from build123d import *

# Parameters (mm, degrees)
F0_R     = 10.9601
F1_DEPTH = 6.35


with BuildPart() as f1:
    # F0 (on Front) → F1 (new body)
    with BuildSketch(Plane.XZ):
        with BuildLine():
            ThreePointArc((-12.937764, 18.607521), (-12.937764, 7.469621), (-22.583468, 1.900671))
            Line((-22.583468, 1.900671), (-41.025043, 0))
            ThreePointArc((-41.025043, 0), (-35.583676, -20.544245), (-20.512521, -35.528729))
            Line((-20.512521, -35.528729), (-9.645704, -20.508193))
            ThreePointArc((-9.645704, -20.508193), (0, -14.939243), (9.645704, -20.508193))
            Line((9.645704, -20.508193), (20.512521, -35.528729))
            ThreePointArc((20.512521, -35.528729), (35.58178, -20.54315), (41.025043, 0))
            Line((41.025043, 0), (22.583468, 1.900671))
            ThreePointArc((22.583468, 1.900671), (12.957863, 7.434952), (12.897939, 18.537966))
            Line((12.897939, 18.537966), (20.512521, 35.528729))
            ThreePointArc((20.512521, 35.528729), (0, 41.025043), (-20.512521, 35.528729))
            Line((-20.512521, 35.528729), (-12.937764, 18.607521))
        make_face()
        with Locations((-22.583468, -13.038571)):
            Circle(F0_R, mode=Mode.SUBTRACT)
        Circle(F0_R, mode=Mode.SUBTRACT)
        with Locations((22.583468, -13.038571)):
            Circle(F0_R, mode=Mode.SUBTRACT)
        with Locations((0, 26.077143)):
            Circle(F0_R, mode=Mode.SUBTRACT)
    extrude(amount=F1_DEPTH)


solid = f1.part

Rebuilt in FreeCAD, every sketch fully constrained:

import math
import FreeCAD as App
import Part
import Sketcher
from FreeCAD import Vector
Q = App.Units.Quantity

doc = App.newDocument("Part")
params = doc.addObject("Spreadsheet::Sheet", "Params")
for row, (alias, value) in enumerate([
    ("sketch1_diameter", "0.863 in"),
    ("pad1_length", "0.25 in"),
], start=1):
    params.set(f"A{row}", alias)
    params.set(f"B{row}", "=" + value)
    params.setAlias(f"B{row}", alias)

body = doc.addObject("PartDesign::Body", "Body")

sketch1 = doc.addObject("Sketcher::SketchObject", "Sketch")
body.addObject(sketch1)
sketch1.AttachmentSupport = (doc.XZ_Plane, [""])
sketch1.MapMode = "FlatFace"
sketch1.addGeometry(Part.ArcOfCircle(Part.Circle(Vector(-22.583468, 13.038571, 0), Vector(0, 0, 1), 11.1379), math.radians(-89.999998), math.radians(30)), False)
sketch1.addGeometry(Part.LineSegment(Vector(-22.583468, 1.900671, 0), Vector(-41.025043, 0, 0)), False)
sketch1.addGeometry(Part.ArcOfCircle(Part.Circle(Vector(-0.405763, -0.234266, 0), Vector(0, 0, 1), 40.619956), math.radians(179.669558), math.radians(240.330444)), False)
sketch1.addGeometry(Part.LineSegment(Vector(-20.512521, -35.528729, 0), Vector(-9.645704, -20.508193, 0)), False)
sketch1.addGeometry(Part.ArcOfCircle(Part.Circle(Vector(0, -26.077142, 0), Vector(0, 0, 1), 11.137899), math.radians(29.999998), math.radians(150.000002)), False)
sketch1.addGeometry(Part.LineSegment(Vector(9.645704, -20.508193, 0), Vector(20.512521, -35.528729, 0)), False)
sketch1.addGeometry(Part.ArcOfCircle(Part.Circle(Vector(0.391904, -0.226265, 0), Vector(0, 0, 1), 40.633769), math.radians(-60.319049), math.radians(0.319048)), False)
sketch1.addGeometry(Part.LineSegment(Vector(41.025043, 0, 0), Vector(22.583468, 1.900671, 0)), False)
sketch1.addGeometry(Part.ArcOfCircle(Part.Circle(Vector(22.583468, 13.038571, 0), Vector(0, 0, 1), 11.1379), math.radians(150.412306), math.radians(270)), False)
sketch1.addGeometry(Part.LineSegment(Vector(12.897939, 18.537966, 0), Vector(20.512521, 35.528729, 0)), False)
sketch1.addGeometry(Part.ArcOfCircle(Part.Circle(Vector(0, 0.000005, 0), Vector(0, 0, 1), 41.025038), math.radians(59.999997), math.radians(120.000003)), False)
sketch1.addGeometry(Part.LineSegment(Vector(-20.512521, 35.528729, 0), Vector(-12.937764, 18.607521, 0)), False)
sketch1.addGeometry(Part.Circle(Vector(-22.583468, -13.038571, 0), Vector(0, 0, 1), 10.9601), False)
sketch1.addGeometry(Part.Circle(Vector(22.583468, -13.038571, 0), Vector(0, 0, 1), 10.9601), False)
sketch1.addGeometry(Part.Circle(Vector(0, 0, 0), Vector(0, 0, 1), 10.9601), False)
sketch1.addGeometry(Part.Circle(Vector(0, 26.077143, 0), Vector(0, 0, 1), 10.9601), False)
sketch1.addConstraint(Sketcher.Constraint("Coincident", 0, 1, 1, 1))
sketch1.addConstraint(Sketcher.Constraint("Coincident", 1, 2, 2, 1))
sketch1.addConstraint(Sketcher.Constraint("Coincident", 2, 2, 3, 1))
sketch1.addConstraint(Sketcher.Constraint("Coincident", 3, 2, 4, 2))
sketch1.addConstraint(Sketcher.Constraint("Coincident", 4, 1, 5, 1))
sketch1.addConstraint(Sketcher.Constraint("Coincident", 5, 2, 6, 1))
sketch1.addConstraint(Sketcher.Constraint("Coincident", 6, 2, 7, 1))
sketch1.addConstraint(Sketcher.Constraint("Coincident", 7, 2, 8, 2))
sketch1.addConstraint(Sketcher.Constraint("Coincident", 8, 1, 9, 1))
sketch1.addConstraint(Sketcher.Constraint("Coincident", 9, 2, 10, 1))
sketch1.addConstraint(Sketcher.Constraint("Coincident", 10, 2, 11, 1))
sketch1.addConstraint(Sketcher.Constraint("Coincident", 11, 2, 0, 2))
sketch1.addConstraint(Sketcher.Constraint("Coincident", 10, 3, -1, 1))
sketch1.addConstraint(Sketcher.Constraint("Coincident", 14, 3, -1, 1))
sketch1.addConstraint(Sketcher.Constraint("Equal", 0, 4))
sketch1.addConstraint(Sketcher.Constraint("Equal", 4, 8))
sketch1.addConstraint(Sketcher.Constraint("Equal", 12, 13))
sketch1.addConstraint(Sketcher.Constraint("Equal", 13, 14))
sketch1.addConstraint(Sketcher.Constraint("Equal", 14, 15))
sketch1.addConstraint(Sketcher.Constraint("Symmetric", 8, 3, 12, 3, -1, 1))
sketch1.addConstraint(Sketcher.Constraint("Symmetric", 0, 3, 13, 3, -1, 1))
sketch1.addConstraint(Sketcher.Constraint("Symmetric", 4, 3, 15, 3, -1, 1))
sketch1.addConstraint(Sketcher.Constraint("Symmetric", 1, 2, 6, 2, -1, 1))
sketch1.addConstraint(Sketcher.Constraint("Symmetric", 2, 2, 9, 2, -1, 1))
sketch1.addConstraint(Sketcher.Constraint("Symmetric", 5, 2, 10, 2, -1, 1))
sketch1.addConstraint(Sketcher.Constraint("Symmetric", 0, 3, 8, 3, -2))
sketch1.addConstraint(Sketcher.Constraint("Symmetric", 3, 2, 4, 1, -2))
sketch1.addConstraint(Sketcher.Constraint("PointOnObject", 1, 2, -1))
sketch1.addConstraint(Sketcher.Constraint("Horizontal", 2, 2, 5, 2))
sketch1.addConstraint(Sketcher.Constraint("Vertical", 12, 3, 0, 1))
sketch1.addConstraint(Sketcher.Constraint("Vertical", 13, 3, 7, 2))
sketch1.addConstraint(Sketcher.Constraint("Equal", 1, 3))
sketch1.addConstraint(Sketcher.Constraint("Equal", 7, 11))
sketch1.addConstraint(Sketcher.Constraint("Diameter", 12, Q("0.863 in")))
sketch1.addConstraint(Sketcher.Constraint("Radius", 0, Q("0.4385 in")))
sketch1.addConstraint(Sketcher.Constraint("Angle", 9, Q("65.859981 deg")))
sketch1.addConstraint(Sketcher.Constraint("Radius", 6, Q("40.633769 mm")))
sketch1.addConstraint(Sketcher.Constraint("Radius", 10, Q("41.025038 mm")))
sketch1.addConstraint(Sketcher.Constraint("Radius", 2, Q("40.619956 mm")))
sketch1.addConstraint(Sketcher.Constraint("DistanceY", 2, 2, 0, 1, Q("37.4294 mm")))
sketch1.addConstraint(Sketcher.Constraint("DistanceX", 6, 3, 4, 1, Q("9.2538 mm")))
sketch1.addConstraint(Sketcher.Constraint("DistanceX", 11, 2, 2, 3, Q("12.532001 mm")))
sketch1.addConstraint(Sketcher.Constraint("Distance", 3, Q("18.539261 mm")))
sketch1.addConstraint(Sketcher.Constraint("Distance", 9, Q("18.619019 mm")))
sketch1.setExpression("Constraints[33]", "Params.sketch1_diameter")
pad1 = doc.addObject("PartDesign::Pad", "Pad")
body.addObject(pad1)
pad1.Profile = sketch1
pad1.setExpression("Length", "Params.pad1_length")

doc.recompute()
